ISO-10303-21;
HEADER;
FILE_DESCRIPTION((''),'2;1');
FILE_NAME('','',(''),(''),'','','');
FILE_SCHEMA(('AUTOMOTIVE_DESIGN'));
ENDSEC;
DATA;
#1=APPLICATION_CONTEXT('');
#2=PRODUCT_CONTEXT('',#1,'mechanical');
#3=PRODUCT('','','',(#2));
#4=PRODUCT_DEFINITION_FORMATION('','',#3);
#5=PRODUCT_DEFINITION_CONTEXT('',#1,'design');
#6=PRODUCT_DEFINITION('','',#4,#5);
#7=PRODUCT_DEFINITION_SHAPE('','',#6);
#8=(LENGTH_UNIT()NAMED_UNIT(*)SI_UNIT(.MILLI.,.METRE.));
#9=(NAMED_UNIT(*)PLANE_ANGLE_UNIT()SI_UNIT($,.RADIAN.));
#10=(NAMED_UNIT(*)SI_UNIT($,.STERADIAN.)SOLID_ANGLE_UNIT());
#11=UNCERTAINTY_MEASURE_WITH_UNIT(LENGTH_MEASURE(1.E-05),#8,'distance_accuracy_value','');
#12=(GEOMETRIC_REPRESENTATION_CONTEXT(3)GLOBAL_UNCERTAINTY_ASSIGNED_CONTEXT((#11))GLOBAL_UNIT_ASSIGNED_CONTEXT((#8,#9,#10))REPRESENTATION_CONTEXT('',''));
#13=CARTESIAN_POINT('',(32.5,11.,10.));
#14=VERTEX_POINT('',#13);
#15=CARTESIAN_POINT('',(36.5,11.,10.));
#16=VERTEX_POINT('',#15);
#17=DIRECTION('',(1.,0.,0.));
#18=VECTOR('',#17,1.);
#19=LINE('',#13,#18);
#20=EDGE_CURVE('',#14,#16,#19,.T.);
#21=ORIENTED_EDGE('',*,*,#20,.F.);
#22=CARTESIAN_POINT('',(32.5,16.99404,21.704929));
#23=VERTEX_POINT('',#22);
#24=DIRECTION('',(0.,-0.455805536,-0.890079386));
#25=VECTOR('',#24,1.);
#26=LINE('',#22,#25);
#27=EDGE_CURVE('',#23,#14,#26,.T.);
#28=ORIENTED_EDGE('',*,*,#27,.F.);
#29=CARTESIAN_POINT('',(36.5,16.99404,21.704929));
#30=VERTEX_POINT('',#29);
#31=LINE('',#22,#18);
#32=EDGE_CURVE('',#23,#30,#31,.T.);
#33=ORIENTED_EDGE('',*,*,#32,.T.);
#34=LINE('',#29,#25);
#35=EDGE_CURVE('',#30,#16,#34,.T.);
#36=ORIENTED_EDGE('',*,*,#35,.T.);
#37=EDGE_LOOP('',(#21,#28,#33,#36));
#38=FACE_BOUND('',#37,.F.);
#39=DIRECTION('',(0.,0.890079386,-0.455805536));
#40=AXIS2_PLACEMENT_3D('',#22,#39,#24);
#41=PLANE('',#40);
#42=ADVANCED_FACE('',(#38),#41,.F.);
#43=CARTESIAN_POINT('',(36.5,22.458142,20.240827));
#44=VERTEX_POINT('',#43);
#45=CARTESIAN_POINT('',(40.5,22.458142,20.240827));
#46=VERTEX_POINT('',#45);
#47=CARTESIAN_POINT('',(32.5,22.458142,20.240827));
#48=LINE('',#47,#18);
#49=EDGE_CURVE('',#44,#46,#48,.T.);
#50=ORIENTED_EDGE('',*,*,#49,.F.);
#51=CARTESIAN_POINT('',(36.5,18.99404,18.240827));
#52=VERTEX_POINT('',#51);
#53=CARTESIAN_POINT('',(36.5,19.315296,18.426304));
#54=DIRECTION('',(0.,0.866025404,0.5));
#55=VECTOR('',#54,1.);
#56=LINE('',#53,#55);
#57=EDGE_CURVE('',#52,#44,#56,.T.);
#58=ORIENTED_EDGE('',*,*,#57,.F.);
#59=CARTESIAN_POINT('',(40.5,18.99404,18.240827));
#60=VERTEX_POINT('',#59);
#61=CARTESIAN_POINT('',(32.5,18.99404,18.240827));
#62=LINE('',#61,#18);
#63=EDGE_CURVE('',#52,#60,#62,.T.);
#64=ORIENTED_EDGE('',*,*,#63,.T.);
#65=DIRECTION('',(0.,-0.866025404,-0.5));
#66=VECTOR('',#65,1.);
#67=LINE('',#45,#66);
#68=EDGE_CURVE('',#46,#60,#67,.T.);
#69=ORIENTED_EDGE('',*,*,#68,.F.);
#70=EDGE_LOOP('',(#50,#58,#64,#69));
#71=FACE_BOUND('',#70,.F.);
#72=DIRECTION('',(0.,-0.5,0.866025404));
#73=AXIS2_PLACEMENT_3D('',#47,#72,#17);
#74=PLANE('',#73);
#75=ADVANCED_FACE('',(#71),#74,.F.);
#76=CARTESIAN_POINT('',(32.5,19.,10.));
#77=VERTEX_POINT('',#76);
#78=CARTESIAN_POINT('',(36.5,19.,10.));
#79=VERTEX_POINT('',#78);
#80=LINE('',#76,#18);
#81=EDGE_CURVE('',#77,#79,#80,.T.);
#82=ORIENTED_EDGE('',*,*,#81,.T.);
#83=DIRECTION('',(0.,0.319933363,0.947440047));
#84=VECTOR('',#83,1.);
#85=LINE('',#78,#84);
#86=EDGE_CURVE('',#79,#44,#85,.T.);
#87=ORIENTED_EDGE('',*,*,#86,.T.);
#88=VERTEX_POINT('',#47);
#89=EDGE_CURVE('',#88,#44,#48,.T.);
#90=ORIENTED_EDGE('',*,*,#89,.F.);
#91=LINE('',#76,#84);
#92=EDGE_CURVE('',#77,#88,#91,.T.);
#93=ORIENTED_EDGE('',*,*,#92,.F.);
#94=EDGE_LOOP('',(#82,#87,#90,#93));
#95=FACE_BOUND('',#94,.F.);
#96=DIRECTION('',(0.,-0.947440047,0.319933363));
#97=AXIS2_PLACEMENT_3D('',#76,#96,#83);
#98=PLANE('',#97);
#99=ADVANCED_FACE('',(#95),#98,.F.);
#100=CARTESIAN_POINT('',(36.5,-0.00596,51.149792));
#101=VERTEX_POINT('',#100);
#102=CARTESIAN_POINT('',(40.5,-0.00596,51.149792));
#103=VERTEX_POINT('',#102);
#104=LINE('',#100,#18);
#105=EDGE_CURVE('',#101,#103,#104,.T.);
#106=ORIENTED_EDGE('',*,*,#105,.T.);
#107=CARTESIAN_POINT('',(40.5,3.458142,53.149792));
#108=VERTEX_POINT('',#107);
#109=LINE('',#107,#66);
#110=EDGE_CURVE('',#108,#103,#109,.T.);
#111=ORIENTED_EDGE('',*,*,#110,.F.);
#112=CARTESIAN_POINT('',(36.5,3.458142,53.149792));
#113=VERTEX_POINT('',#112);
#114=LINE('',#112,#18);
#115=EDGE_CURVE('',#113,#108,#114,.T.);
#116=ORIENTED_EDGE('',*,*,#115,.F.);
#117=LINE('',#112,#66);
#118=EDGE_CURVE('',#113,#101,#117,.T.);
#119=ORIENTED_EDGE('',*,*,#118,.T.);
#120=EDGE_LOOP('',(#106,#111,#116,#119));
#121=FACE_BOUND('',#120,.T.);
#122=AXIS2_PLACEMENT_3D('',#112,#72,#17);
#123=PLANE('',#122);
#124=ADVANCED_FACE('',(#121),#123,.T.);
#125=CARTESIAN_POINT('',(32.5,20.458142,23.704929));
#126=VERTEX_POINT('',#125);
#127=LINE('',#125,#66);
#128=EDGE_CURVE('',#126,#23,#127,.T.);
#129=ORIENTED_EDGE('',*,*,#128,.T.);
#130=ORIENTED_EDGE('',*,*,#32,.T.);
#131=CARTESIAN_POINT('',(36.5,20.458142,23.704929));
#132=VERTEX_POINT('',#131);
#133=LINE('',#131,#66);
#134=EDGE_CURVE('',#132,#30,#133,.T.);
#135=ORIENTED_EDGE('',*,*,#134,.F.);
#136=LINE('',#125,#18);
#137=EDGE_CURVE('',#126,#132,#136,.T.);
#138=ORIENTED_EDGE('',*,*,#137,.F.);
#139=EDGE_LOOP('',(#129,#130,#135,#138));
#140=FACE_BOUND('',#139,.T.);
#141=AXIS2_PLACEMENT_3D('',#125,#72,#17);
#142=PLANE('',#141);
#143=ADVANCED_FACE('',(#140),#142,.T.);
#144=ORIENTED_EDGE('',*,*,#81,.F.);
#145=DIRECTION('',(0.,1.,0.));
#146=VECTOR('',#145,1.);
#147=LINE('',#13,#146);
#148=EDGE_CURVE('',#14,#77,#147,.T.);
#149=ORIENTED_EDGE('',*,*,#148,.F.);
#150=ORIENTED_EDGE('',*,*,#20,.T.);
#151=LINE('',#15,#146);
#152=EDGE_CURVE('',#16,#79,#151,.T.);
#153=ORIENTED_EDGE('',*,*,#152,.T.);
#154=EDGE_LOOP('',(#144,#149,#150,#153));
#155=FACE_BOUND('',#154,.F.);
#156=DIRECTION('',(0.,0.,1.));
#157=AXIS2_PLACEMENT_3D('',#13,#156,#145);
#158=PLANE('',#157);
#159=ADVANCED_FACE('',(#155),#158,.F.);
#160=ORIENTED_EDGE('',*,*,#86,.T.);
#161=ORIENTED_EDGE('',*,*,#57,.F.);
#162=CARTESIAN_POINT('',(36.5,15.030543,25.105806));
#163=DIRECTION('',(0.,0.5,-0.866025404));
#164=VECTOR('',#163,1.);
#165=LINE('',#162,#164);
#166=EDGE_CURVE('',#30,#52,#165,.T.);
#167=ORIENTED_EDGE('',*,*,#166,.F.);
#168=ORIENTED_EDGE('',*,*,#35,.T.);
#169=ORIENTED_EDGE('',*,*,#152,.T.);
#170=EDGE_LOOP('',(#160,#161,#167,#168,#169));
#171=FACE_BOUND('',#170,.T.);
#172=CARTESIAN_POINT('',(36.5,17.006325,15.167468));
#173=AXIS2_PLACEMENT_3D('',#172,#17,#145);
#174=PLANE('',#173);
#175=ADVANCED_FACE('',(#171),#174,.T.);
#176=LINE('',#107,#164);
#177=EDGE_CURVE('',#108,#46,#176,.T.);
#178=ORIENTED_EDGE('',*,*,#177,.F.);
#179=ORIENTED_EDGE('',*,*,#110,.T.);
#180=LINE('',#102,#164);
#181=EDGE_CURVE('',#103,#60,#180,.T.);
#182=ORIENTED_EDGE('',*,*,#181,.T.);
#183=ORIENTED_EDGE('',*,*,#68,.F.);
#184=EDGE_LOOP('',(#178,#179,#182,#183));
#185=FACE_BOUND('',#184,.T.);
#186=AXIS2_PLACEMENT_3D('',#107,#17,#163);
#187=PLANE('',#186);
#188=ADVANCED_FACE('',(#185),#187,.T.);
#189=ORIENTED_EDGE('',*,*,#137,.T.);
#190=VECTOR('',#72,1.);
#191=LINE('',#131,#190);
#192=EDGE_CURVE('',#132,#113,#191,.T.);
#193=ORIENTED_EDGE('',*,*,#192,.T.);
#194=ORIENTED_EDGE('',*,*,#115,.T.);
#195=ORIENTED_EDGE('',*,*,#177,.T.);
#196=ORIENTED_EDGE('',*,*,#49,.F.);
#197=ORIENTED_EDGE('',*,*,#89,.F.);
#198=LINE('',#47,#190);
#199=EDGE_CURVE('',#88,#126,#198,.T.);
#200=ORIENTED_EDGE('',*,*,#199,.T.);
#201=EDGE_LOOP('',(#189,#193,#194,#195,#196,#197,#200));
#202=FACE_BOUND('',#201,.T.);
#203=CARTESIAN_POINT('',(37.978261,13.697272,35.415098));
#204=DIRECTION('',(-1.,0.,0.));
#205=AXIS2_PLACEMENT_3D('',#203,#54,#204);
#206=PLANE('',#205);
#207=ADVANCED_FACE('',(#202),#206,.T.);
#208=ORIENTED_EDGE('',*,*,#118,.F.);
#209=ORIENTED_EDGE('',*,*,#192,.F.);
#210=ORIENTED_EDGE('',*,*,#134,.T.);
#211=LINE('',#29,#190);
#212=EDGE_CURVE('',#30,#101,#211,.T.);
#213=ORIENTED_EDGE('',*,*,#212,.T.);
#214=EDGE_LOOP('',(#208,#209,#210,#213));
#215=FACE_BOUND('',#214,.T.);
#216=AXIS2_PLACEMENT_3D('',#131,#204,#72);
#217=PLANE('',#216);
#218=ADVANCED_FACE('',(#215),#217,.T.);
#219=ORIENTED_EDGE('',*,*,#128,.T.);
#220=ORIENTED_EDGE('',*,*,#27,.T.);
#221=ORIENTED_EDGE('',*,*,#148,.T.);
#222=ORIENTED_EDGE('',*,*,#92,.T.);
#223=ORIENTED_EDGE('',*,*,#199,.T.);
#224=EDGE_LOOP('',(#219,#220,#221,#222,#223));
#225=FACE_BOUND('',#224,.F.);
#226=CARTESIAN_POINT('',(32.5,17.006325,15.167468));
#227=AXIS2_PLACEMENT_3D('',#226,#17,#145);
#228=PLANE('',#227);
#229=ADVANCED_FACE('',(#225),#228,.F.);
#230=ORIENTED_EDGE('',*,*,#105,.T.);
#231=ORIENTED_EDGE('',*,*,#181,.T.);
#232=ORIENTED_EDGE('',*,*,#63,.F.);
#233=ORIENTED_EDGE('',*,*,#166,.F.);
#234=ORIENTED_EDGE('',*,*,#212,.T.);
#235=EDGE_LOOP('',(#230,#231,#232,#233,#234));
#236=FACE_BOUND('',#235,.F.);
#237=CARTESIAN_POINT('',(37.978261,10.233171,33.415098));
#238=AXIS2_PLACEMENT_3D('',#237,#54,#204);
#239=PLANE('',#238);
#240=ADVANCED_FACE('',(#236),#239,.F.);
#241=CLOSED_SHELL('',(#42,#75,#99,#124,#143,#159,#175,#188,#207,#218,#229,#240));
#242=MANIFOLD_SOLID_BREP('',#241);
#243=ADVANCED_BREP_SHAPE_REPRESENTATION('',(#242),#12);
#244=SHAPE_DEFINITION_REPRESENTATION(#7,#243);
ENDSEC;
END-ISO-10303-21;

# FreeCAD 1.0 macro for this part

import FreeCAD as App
import Part
import Sketcher
Q = App.Units.Quantity


def add_polygon(sketch, points):
    """Adds a closed chain of lines whose ends are joined by coincident constraints."""
    first, n = sketch.GeometryCount, len(points)
    for a, b in zip(points, points[1:] + points[:1]):
        sketch.addGeometry(Part.LineSegment(App.Vector(*a, 0), App.Vector(*b, 0)), False)
    for i in range(n):
        sketch.addConstraint(Sketcher.Constraint("Coincident", first + i, 2, first + (i + 1) % n, 1))

doc = App.newDocument("Part")
body = doc.addObject("PartDesign::Body", "Body")

# Sketch on YZ plane
sketch1 = body.newObject("Sketcher::SketchObject", "Sketch")
sketch1.AttachmentSupport = (doc.getObject("YZ_Plane"), [""])
sketch1.MapMode = "FlatFace"
sketch1.AttachmentOffset = App.Placement(App.Vector(0, 0, 32.5), App.Rotation())
add_polygon(sketch1, [(22, 20), (19, 10), (11, 10), (17, 22)])  # lines 0-3
sketch1.addConstraint([
    Sketcher.Constraint("Horizontal", 1),
    Sketcher.Constraint("DistanceX", 1, 2, 1, 1, Q("8 mm")),
    Sketcher.Constraint("Angle", 3, Q("-15.000003 deg")),
    Sketcher.Constraint("DistanceX", -1, 1, 0, 2, Q("19 mm")),
    Sketcher.Constraint("DistanceY", -1, 1, 0, 2, Q("10 mm")),
    Sketcher.Constraint("DistanceX", -1, 1, 2, 2, Q("16.99404 mm")),
    Sketcher.Constraint("DistanceY", -1, 1, 2, 2, Q("21.704929 mm")),
    Sketcher.Constraint("DistanceX", -1, 1, 3, 2, Q("22.458142 mm")),
])
pad1 = body.newObject("PartDesign::Pad", "Pad")
pad1.Profile = sketch1
pad1.Length = 4
body2 = doc.addObject("PartDesign::Body", "Body001")

# Sketch on XY plane
sketch2 = body2.newObject("Sketcher::SketchObject", "Sketch001")
sketch2.AttachmentSupport = (doc.getObject("XY_Plane001"), [""])
sketch2.MapMode = "FlatFace"
add_polygon(sketch2, [(36.5, 10.3), (32.5, 10.3), (32.5, 6.3), (40.5, 6.3), (40.5, 44.3), (36.5, 44.3)])  # lines 0-5
sketch2.addConstraint([
    Sketcher.Constraint("Horizontal", 0),
    Sketcher.Constraint("Vertical", 1),
    Sketcher.Constraint("Horizontal", 2),
    Sketcher.Constraint("Vertical", 3),
    Sketcher.Constraint("Horizontal", 4),
    Sketcher.Constraint("Vertical", 5),
    Sketcher.Constraint("Equal", 0, 4),
    Sketcher.Constraint("Equal", 4, 1),
    Sketcher.Constraint("DistanceX", 0, 2, 0, 1, Q("4 mm")),
    Sketcher.Constraint("DistanceY", 3, 1, 3, 2, Q("38 mm")),
    Sketcher.Constraint("DistanceX", -1, 1, 0, 2, Q("32.5 mm")),
    Sketcher.Constraint("DistanceY", -1, 1, 0, 2, Q("10.3 mm")),
])
pad2 = body2.newObject("PartDesign::Pad", "Pad001")
pad2.Profile = sketch2
pad2.Length = 4
body3 = doc.addObject("PartDesign::Body", "Body002")
doc.recompute()

body2.Placement = App.Placement(App.Vector(0, 25.608142, 14.784867), App.Rotation(App.Vector(1, 0, 0), 120))
boolean = body3.newObject("PartDesign::Boolean", "Boolean")
boolean.Type = "Fuse"
boolean.addObjects([body2])
doc.recompute()

boolean2 = body3.newObject("PartDesign::Boolean", "Boolean001")
boolean2.Type = "Fuse"
boolean2.addObjects([body])

doc.recompute()
